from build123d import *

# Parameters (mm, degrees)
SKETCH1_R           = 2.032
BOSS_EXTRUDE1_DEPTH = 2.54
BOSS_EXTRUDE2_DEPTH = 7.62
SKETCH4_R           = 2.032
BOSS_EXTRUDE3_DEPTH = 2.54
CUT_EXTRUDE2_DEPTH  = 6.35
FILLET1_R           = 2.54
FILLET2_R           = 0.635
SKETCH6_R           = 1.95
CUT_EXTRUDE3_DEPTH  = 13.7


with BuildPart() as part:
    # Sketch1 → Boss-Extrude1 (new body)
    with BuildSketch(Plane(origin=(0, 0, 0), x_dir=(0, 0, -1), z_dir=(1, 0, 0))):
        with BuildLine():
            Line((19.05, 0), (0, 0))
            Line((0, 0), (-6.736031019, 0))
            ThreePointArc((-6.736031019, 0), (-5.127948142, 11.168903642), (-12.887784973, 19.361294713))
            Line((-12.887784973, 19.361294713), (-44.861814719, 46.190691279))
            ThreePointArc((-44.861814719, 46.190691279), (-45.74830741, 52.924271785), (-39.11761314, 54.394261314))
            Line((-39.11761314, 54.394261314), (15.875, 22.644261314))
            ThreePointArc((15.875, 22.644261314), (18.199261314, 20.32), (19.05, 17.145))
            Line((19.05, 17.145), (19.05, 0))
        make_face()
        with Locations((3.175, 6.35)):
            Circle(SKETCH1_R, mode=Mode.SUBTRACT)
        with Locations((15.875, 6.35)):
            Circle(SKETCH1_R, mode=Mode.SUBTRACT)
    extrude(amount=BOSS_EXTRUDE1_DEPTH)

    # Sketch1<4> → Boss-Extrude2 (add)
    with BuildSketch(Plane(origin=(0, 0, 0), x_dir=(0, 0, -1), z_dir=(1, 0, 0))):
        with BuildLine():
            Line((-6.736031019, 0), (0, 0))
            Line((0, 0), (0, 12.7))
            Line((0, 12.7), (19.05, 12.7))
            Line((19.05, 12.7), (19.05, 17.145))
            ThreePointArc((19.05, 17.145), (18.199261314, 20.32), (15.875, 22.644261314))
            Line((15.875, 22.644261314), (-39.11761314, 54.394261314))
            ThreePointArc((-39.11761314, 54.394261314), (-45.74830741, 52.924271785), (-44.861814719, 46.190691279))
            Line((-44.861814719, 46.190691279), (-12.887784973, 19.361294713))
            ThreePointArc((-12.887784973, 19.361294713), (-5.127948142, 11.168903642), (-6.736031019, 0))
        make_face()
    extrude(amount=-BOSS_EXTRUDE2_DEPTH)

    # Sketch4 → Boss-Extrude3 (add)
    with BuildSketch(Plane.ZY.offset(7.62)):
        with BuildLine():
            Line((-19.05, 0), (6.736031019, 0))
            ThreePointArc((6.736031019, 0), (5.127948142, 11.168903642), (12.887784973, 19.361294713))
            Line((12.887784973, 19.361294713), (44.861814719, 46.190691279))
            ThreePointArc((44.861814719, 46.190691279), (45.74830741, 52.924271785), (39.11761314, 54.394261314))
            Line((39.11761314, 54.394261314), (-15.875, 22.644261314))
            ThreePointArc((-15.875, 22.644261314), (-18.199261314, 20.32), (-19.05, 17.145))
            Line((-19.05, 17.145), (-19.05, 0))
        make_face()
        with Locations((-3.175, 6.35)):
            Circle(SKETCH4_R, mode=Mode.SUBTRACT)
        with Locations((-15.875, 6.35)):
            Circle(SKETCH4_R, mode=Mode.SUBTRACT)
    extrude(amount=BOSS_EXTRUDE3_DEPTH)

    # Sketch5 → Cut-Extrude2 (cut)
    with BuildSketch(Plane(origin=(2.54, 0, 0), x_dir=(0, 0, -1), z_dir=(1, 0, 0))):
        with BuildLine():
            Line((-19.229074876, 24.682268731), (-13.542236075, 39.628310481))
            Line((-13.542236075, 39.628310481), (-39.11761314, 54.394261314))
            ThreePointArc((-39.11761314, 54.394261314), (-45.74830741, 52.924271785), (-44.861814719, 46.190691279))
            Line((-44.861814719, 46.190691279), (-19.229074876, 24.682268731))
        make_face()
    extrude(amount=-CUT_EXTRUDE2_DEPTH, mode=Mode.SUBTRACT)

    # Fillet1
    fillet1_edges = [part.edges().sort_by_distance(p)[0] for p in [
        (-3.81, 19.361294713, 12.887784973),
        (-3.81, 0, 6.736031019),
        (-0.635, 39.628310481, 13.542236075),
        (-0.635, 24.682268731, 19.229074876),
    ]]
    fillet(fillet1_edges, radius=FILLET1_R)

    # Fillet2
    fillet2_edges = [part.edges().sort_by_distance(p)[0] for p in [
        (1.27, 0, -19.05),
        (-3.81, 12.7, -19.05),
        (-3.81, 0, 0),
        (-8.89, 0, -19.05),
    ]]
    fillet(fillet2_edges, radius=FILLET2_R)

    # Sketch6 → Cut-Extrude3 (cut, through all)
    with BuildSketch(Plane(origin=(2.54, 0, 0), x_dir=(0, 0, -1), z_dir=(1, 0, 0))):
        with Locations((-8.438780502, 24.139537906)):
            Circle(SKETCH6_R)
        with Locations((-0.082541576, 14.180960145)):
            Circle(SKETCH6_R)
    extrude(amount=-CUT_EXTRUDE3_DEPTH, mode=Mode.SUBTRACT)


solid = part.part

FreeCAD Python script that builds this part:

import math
import FreeCAD as App
import Part
import Sketcher
Q = App.Units.Quantity


def edges_at(feature, points):
    """Names of the edges that pass closest to the given points."""
    edges = feature.Shape.Edges
    near = lambda p: min(range(len(edges)), key=lambda i: edges[i].distToShape(Part.Vertex(*p))[0])
    return sorted({f"Edge{near(p) + 1}" for p in points})

doc = App.newDocument("Part")
body = doc.addObject("PartDesign::Body", "Body")

# Sketch on YZ plane
sketch1 = body.newObject("Sketcher::SketchObject", "Sketch")
sketch1.AttachmentSupport = (doc.getObject("YZ_Plane"), [""])
sketch1.MapMode = "FlatFace"
sketch1.addGeometry([
    Part.LineSegment(App.Vector(0, 6.7, 0), App.Vector(0, -19.1, 0)),  # 0
    Part.LineSegment(App.Vector(0, -19.1, 0), App.Vector(17.1, -19.1, 0)),  # 1
    Part.ArcOfCircle(Part.Circle(App.Vector(17.1, -12.7, 0), App.Vector(0, 0, 1), 6.3), math.radians(-90), math.radians(-30)),  # 2
    Part.LineSegment(App.Vector(22.6, -15.9, 0), App.Vector(54.4, 39.1, 0)),  # 3
    Part.ArcOfCircle(Part.Circle(App.Vector(50, 41.6, 0), App.Vector(0, 0, 1), 5), math.radians(-30), math.radians(140)),  # 4
    Part.LineSegment(App.Vector(46.2, 44.9, 0), App.Vector(19.4, 12.9, 0)),  # 5
    Part.ArcOfCircle(Part.Circle(App.Vector(7.2, 17.5, 0), App.Vector(0, 0, 1), 13), math.radians(-124), math.radians(-21)),  # 6
    Part.Circle(App.Vector(6.3, -15.9, 0), App.Vector(0, 0, 1), 2),  # 7
    Part.Circle(App.Vector(6.3, -3.2, 0), App.Vector(0, 0, 1), 2),  # 8
], False)
sketch1.addConstraint([
    Sketcher.Constraint("Coincident", 0, 2, 1, 1),
    Sketcher.Constraint("Tangent", 1, 2, 2, 1),
    Sketcher.Constraint("Tangent", 2, 2, 3, 1),
    Sketcher.Constraint("Tangent", 3, 2, 4, 1),
    Sketcher.Constraint("Tangent", 4, 2, 5, 1),
    Sketcher.Constraint("Coincident", 5, 2, 6, 2),
    Sketcher.Constraint("Coincident", 6, 1, 0, 1),
    Sketcher.Constraint("Vertical", 0),
    Sketcher.Constraint("Horizontal", 1),
    Sketcher.Constraint("Equal", 7, 8),
    Sketcher.Constraint("PointOnObject", 0, 2, -2),
    Sketcher.Constraint("Horizontal", 7, 3, 2, 2),
    Sketcher.Constraint("Vertical", 7, 3, 8, 3),
    Sketcher.Constraint("Diameter", 7, Q("0.16 in")),
    Sketcher.Constraint("Radius", 2, Q("0.25 in")),
    Sketcher.Constraint("Radius", 6, Q("0.51 in")),
    Sketcher.Constraint("Angle", 3, Q("60 deg")),
    Sketcher.Constraint("Angle", 5, Q("-130 deg")),
    Sketcher.Constraint("Distance", 3, Q("2.5 in")),
    Sketcher.Constraint("DistanceY", 2, 3, -1, 1, Q("0.5 in")),
    Sketcher.Constraint("DistanceY", 7, 3, 8, 3, Q("0.5 in")),
    Sketcher.Constraint("DistanceX", 1, 1, 1, 2, Q("0.675 in")),
    Sketcher.Constraint("DistanceX", -1, 1, 7, 3, Q("0.25 in")),
    Sketcher.Constraint("Radius", 4, Q("5.026482 mm")),
    Sketcher.Constraint("DistanceY", 0, 2, 0, 1, Q("25.786031 mm")),
    Sketcher.Constraint("Distance", 5, Q("41.739131 mm")),
])
pad1 = body.newObject("PartDesign::Pad", "Pad")
pad1.Profile = sketch1
pad1.Length = Q("0.1 in")

# Sketch on YZ plane
sketch2 = body.newObject("Sketcher::SketchObject", "Sketch001")
sketch2.AttachmentSupport = (doc.getObject("YZ_Plane"), [""])
sketch2.MapMode = "FlatFace"
sketch2.addGeometry([
    Part.LineSegment(App.Vector(0, 6.7, 0), App.Vector(0, 0, 0)),  # 0
    Part.LineSegment(App.Vector(0, 0, 0), App.Vector(12.7, 0, 0)),  # 1
    Part.LineSegment(App.Vector(12.7, 0, 0), App.Vector(12.7, -19.1, 0)),  # 2
    Part.LineSegment(App.Vector(12.7, -19.1, 0), App.Vector(17.1, -19.1, 0)),  # 3
    Part.ArcOfCircle(Part.Circle(App.Vector(17.1, -12.7, 0), App.Vector(0, 0, 1), 6.3), math.radians(-90), math.radians(-30)),  # 4
    Part.LineSegment(App.Vector(22.6, -15.9, 0), App.Vector(54.4, 39.1, 0)),  # 5
    Part.ArcOfCircle(Part.Circle(App.Vector(50, 41.6, 0), App.Vector(0, 0, 1), 5), math.radians(-30), math.radians(140)),  # 6
    Part.LineSegment(App.Vector(46.2, 44.9, 0), App.Vector(19.4, 12.9, 0)),  # 7
    Part.ArcOfCircle(Part.Circle(App.Vector(7.2, 17.5, 0), App.Vector(0, 0, 1), 13), math.radians(-124), math.radians(-21)),  # 8
], False)
sketch2.addConstraint([
    Sketcher.Constraint("Coincident", 0, 2, 1, 1),
    Sketcher.Constraint("Coincident", 1, 2, 2, 1),
    Sketcher.Constraint("Coincident", 2, 2, 3, 1),
    Sketcher.Constraint("Tangent", 3, 2, 4, 1),
    Sketcher.Constraint("Tangent", 4, 2, 5, 1),
    Sketcher.Constraint("Tangent", 5, 2, 6, 1),
    Sketcher.Constraint("Tangent", 6, 2, 7, 1),
    Sketcher.Constraint("Coincident", 7, 2, 8, 2),
    Sketcher.Constraint("Coincident", 8, 1, 0, 1),
    Sketcher.Constraint("Vertical", 0),
    Sketcher.Constraint("Horizontal", 1),
    Sketcher.Constraint("Vertical", 2),
    Sketcher.Constraint("Horizontal", 3),
    Sketcher.Constraint("Coincident", 0, 2, -1, 1),
    Sketcher.Constraint("Radius", 4, Q("0.25 in")),
    Sketcher.Constraint("Radius", 8, Q("0.51 in")),
    Sketcher.Constraint("DistanceX", 1, 1, 1, 2, Q("0.5 in")),
    Sketcher.Constraint("Angle", 5, Q("60 deg")),
    Sketcher.Constraint("Angle", 7, Q("-130 deg")),
    Sketcher.Constraint("Distance", 5, Q("2.5 in")),
    Sketcher.Constraint("DistanceY", 2, 2, 2, 1, Q("0.75 in")),
    Sketcher.Constraint("DistanceX", 3, 1, 3, 2, Q("0.175 in")),
    Sketcher.Constraint("Radius", 6, Q("5.026482 mm")),
    Sketcher.Constraint("DistanceY", 0, 2, 0, 1, Q("6.736031 mm")),
    Sketcher.Constraint("Distance", 7, Q("41.739131 mm")),
])
pad2 = body.newObject("PartDesign::Pad", "Pad001")
pad2.Profile = sketch2
pad2.Length = Q("0.3 in")
pad2.Reversed = True

# Sketch on YZ plane
sketch3 = body.newObject("Sketcher::SketchObject", "Sketch002")
sketch3.AttachmentSupport = (doc.getObject("YZ_Plane"), [""])
sketch3.MapMode = "FlatFace"
sketch3.AttachmentOffset = App.Placement(App.Vector(0, 0, -0.3 * 25.4), App.Rotation())
sketch3.addGeometry([
    Part.LineSegment(App.Vector(0, -19.1, 0), App.Vector(0, 6.7, 0)),  # 0
    Part.ArcOfCircle(Part.Circle(App.Vector(7.2, 17.5, 0), App.Vector(0, 0, 1), 13), math.radians(-124), math.radians(-21)),  # 1
    Part.LineSegment(App.Vector(19.4, 12.9, 0), App.Vector(46.2, 44.9, 0)),  # 2
    Part.ArcOfCircle(Part.Circle(App.Vector(50, 41.6, 0), App.Vector(0, 0, 1), 5), math.radians(-30), math.radians(140)),  # 3
    Part.LineSegment(App.Vector(54.4, 39.1, 0), App.Vector(22.6, -15.9, 0)),  # 4
    Part.ArcOfCircle(Part.Circle(App.Vector(17.1, -12.7, 0), App.Vector(0, 0, 1), 6.3), math.radians(-90), math.radians(-30)),  # 5
    Part.LineSegment(App.Vector(17.1, -19.1, 0), App.Vector(0, -19.1, 0)),  # 6
    Part.Circle(App.Vector(6.3, -15.9, 0), App.Vector(0, 0, 1), 2),  # 7
    Part.Circle(App.Vector(6.3, -3.2, 0), App.Vector(0, 0, 1), 2),  # 8
], False)
sketch3.addConstraint([
    Sketcher.Constraint("Coincident", 0, 2, 1, 1),
    Sketcher.Constraint("Coincident", 1, 2, 2, 1),
    Sketcher.Constraint("Tangent", 2, 2, 3, 2),
    Sketcher.Constraint("Tangent", 3, 1, 4, 1),
    Sketcher.Constraint("Tangent", 4, 2, 5, 2),
    Sketcher.Constraint("Tangent", 5, 1, 6, 1),
    Sketcher.Constraint("Coincident", 6, 2, 0, 1),
    Sketcher.Constraint("Vertical", 0),
    Sketcher.Constraint("Horizontal", 6),
    Sketcher.Constraint("Equal", 7, 8),
    Sketcher.Constraint("PointOnObject", 0, 2, -2),
    Sketcher.Constraint("Horizontal", 7, 3, 4, 2),
    Sketcher.Constraint("Vertical", 7, 3, 8, 3),
    Sketcher.Constraint("Diameter", 7, Q("0.16 in")),
    Sketcher.Constraint("Radius", 1, Q("0.51 in")),
    Sketcher.Constraint("Radius", 5, Q("0.25 in")),
    Sketcher.Constraint("Angle", 2, Q("50 deg")),
    Sketcher.Constraint("Angle", 4, Q("-120 deg")),
    Sketcher.Constraint("Distance", 4, Q("2.5 in")),
    Sketcher.Constraint("DistanceY", 5, 3, -1, 1, Q("0.5 in")),
    Sketcher.Constraint("DistanceY", 7, 3, 8, 3, Q("0.5 in")),
    Sketcher.Constraint("DistanceX", 6, 2, 6, 1, Q("0.675 in")),
    Sketcher.Constraint("DistanceX", -1, 1, 7, 3, Q("0.25 in")),
    Sketcher.Constraint("Radius", 3, Q("5.026482 mm")),
    Sketcher.Constraint("DistanceY", 0, 1, 0, 2, Q("25.786031 mm")),
    Sketcher.Constraint("Distance", 2, Q("41.739131 mm")),
])
pad3 = body.newObject("PartDesign::Pad", "Pad002")
pad3.Profile = sketch3
pad3.Length = Q("0.1 in")
pad3.Reversed = True

# Sketch on YZ plane
sketch4 = body.newObject("Sketcher::SketchObject", "Sketch003")
sketch4.AttachmentSupport = (doc.getObject("YZ_Plane"), [""])
sketch4.MapMode = "FlatFace"
sketch4.AttachmentOffset = App.Placement(App.Vector(0, 0, 0.1 * 25.4), App.Rotation())
sketch4.addGeometry([
    Part.LineSegment(App.Vector(25, 19, 0), App.Vector(40, 14, 0)),
    Part.LineSegment(App.Vector(40, 14, 0), App.Vector(54, 39, 0)),
    Part.ArcOfCircle(Part.Circle(App.Vector(50, 42, 0), App.Vector(0, 0, 1), 5), math.radians(-30), math.radians(140)),
    Part.LineSegment(App.Vector(46, 45, 0), App.Vector(25, 19, 0)),
], False)
sketch4.addConstraint([
    Sketcher.Constraint("Coincident", 0, 2, 1, 1),
    Sketcher.Constraint("Tangent", 1, 2, 2, 1),
    Sketcher.Constraint("Tangent", 2, 2, 3, 1),
    Sketcher.Constraint("Coincident", 3, 2, 0, 1),
    Sketcher.Constraint("Angle", 1, Q("60 deg")),
    Sketcher.Constraint("Angle", 3, Q("-130 deg")),
    Sketcher.Constraint("Radius", 2, Q("5.026482 mm")),
    Sketcher.Constraint("Distance", 1, Q("29.531902 mm")),
    Sketcher.Constraint("DistanceX", -1, 1, 2, 3, Q("50.0412 mm")),
    Sketcher.Constraint("DistanceX", -1, 1, 3, 2, Q("24.682269 mm")),
    Sketcher.Constraint("DistanceY", -1, 1, 2, 3, Q("41.630854 mm")),
])
pocket1 = body.newObject("PartDesign::Pocket", "Pocket")
pocket1.Profile = sketch4
pocket1.Length = Q("0.25 in")
doc.recompute()

fillet = body.newObject("PartDesign::Fillet", "Fillet")
fillet.Base = (pocket1, edges_at(pocket1, [
    (-3.81, 19.361, 12.888),
    (-3.81, 0, 6.736),
    (-0.635, 39.628, 13.542),
    (-0.635, 24.682, 19.229),
]))
fillet.Radius = Q("0.1 in")
doc.recompute()

fillet2 = body.newObject("PartDesign::Fillet", "Fillet001")
fillet2.Base = (fillet, edges_at(fillet, [
    (1.27, 0, -19.05),
    (-3.81, 12.7, -19.05),
    (-3.81, 0, 0),
    (-8.89, 0, -19.05),
]))
fillet2.Radius = Q("0.025 in")

# Sketch on YZ plane
sketch5 = body.newObject("Sketcher::SketchObject", "Sketch004")
sketch5.AttachmentSupport = (doc.getObject("YZ_Plane"), [""])
sketch5.MapMode = "FlatFace"
sketch5.AttachmentOffset = App.Placement(App.Vector(0, 0, 0.1 * 25.4), App.Rotation())
sketch5.addGeometry([
    Part.Circle(App.Vector(24.1, 8.4, 0), App.Vector(0, 0, 1), 1.9),
    Part.Circle(App.Vector(14.2, 0.1, 0), App.Vector(0, 0, 1), 1.9),
], False)
sketch5.addConstraint([
    Sketcher.Constraint("Equal", 0, 1),
    Sketcher.Constraint("Diameter", 0, Q("3.9 mm")),
    Sketcher.Constraint("DistanceY", -1, 1, 0, 3, Q("8.438781 mm")),
    Sketcher.Constraint("DistanceX", -1, 1, 1, 3, Q("14.18096 mm")),
    Sketcher.Constraint("DistanceY", -1, 1, 1, 3, Q("0.082542 mm")),
    Sketcher.Constraint("DistanceX", -1, 1, 0, 3, Q("24.139538 mm")),
])
pocket2 = body.newObject("PartDesign::Pocket", "Pocket001")
pocket2.Profile = sketch5
pocket2.Type = "ThroughAll"

doc.recompute()
